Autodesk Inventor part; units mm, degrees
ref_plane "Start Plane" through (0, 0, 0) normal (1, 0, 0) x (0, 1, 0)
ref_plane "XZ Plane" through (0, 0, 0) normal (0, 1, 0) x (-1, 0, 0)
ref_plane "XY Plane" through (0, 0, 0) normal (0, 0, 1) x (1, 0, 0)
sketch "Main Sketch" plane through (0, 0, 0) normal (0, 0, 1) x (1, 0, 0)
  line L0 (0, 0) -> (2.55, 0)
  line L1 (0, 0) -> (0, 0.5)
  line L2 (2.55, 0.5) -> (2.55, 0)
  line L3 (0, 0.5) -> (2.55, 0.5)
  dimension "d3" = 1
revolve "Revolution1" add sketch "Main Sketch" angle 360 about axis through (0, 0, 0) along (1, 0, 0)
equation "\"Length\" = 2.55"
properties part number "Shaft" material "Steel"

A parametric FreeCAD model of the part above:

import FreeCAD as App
import Part
import Sketcher
from FreeCAD import Vector

doc = App.newDocument("Part")
body = doc.addObject("PartDesign::Body", "Body")

sketch1 = doc.addObject("Sketcher::SketchObject", "Sketch")
body.addObject(sketch1)
sketch1.AttachmentSupport = (doc.XY_Plane, [""])
sketch1.MapMode = "FlatFace"
sketch1.addGeometry(Part.LineSegment(Vector(0, 0.5, 0), Vector(0, 0, 0)), False)
sketch1.addGeometry(Part.LineSegment(Vector(0, 0, 0), Vector(2.5, 0, 0)), False)
sketch1.addGeometry(Part.LineSegment(Vector(2.5, 0, 0), Vector(2.5, 0.5, 0)), False)
sketch1.addGeometry(Part.LineSegment(Vector(2.5, 0.5, 0), Vector(0, 0.5, 0)), False)
sketch1.addConstraint(Sketcher.Constraint("Coincident", 0, 2, 1, 1))
sketch1.addConstraint(Sketcher.Constraint("Coincident", 1, 2, 2, 1))
sketch1.addConstraint(Sketcher.Constraint("Coincident", 2, 2, 3, 1))
sketch1.addConstraint(Sketcher.Constraint("Coincident", 3, 2, 0, 1))
sketch1.addConstraint(Sketcher.Constraint("Vertical", 0))
sketch1.addConstraint(Sketcher.Constraint("Horizontal", 1))
sketch1.addConstraint(Sketcher.Constraint("Vertical", 2))
sketch1.addConstraint(Sketcher.Constraint("Horizontal", 3))
sketch1.addConstraint(Sketcher.Constraint("Coincident", 0, 2, -1, 1))
sketch1.addConstraint(Sketcher.Constraint("DistanceY", 0, 2, 0, 1, 0.5))
sketch1.addConstraint(Sketcher.Constraint("DistanceX", 1, 1, 1, 2, 2.55))
revolution = doc.addObject("PartDesign::Revolution", "Revolution")
body.addObject(revolution)
revolution.Profile = sketch1
revolution.ReferenceAxis = (sketch1, ["H_Axis"])
revolution.Angle = 360

doc.recompute()
